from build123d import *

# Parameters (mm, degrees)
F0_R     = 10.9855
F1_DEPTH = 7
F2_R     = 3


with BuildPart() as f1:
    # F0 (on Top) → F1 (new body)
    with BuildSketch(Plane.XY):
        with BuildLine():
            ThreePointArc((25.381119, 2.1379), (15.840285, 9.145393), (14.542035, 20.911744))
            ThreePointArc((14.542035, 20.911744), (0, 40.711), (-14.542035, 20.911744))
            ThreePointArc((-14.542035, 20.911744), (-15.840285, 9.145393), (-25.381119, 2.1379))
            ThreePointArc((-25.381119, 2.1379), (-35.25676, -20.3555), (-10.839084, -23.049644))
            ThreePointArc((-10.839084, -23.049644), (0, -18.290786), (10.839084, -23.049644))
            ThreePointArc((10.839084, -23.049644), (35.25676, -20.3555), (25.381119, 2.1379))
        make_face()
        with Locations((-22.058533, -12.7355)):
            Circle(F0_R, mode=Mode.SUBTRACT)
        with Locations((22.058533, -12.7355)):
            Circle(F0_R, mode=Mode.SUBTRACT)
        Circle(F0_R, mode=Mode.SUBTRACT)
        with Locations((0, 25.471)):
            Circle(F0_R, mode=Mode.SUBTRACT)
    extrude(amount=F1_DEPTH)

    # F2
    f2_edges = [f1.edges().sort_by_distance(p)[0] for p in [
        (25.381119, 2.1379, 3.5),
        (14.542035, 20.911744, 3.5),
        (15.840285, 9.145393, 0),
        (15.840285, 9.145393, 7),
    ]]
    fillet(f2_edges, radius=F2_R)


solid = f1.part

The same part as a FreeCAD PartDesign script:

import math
import FreeCAD as App
import Part
import Sketcher
Q = App.Units.Quantity


def edges_at(feature, points):
    """Names of the edges that pass closest to the given points."""
    edges = feature.Shape.Edges
    near = lambda p: min(range(len(edges)), key=lambda i: edges[i].distToShape(Part.Vertex(*p))[0])
    return sorted({f"Edge{near(p) + 1}" for p in points})

doc = App.newDocument("Part")
params = doc.addObject("Spreadsheet::Sheet", "Params")
for row, (alias, value) in enumerate([
    ("sketch1_radius", "15.24 mm"),
    ("pad1_length", "7 mm"),
    ("fillet_radius", "3 mm"),
], start=1):
    params.set(f"A{row}", alias)
    params.set(f"B{row}", "=" + value)
    params.setAlias(f"B{row}", alias)

body = doc.addObject("PartDesign::Body", "Body")

# Sketch on XY plane
sketch1 = body.newObject("Sketcher::SketchObject", "Sketch")
sketch1.AttachmentSupport = (doc.getObject("XY_Plane"), [""])
sketch1.MapMode = "FlatFace"
sketch1.addGeometry([
    Part.ArcOfCircle(Part.Circle(App.Vector(29, 17, 0), App.Vector(0, 0, 1), 15), math.radians(163), math.radians(257)),  # 0
    Part.ArcOfCircle(Part.Circle(App.Vector(0, 25, 0), App.Vector(0, 0, 1), 15), math.radians(-17), math.radians(197)),  # 1
    Part.ArcOfCircle(Part.Circle(App.Vector(-29, 17, 0), App.Vector(0, 0, 1), 15), math.radians(-77), math.radians(17)),  # 2
    Part.ArcOfCircle(Part.Circle(App.Vector(-22, -13, 0), App.Vector(0, 0, 1), 15), math.radians(103), math.radians(317)),  # 3
    Part.ArcOfCircle(Part.Circle(App.Vector(0, -33, 0), App.Vector(0, 0, 1), 15), math.radians(43), math.radians(137)),  # 4
    Part.ArcOfCircle(Part.Circle(App.Vector(22, -13, 0), App.Vector(0, 0, 1), 15), math.radians(-137), math.radians(77)),  # 5
    Part.Circle(App.Vector(-22, -13, 0), App.Vector(0, 0, 1), 11),  # 6
    Part.Circle(App.Vector(22, -13, 0), App.Vector(0, 0, 1), 11),  # 7
    Part.Circle(App.Vector(0, 0, 0), App.Vector(0, 0, 1), 11),  # 8
    Part.Circle(App.Vector(0, 25, 0), App.Vector(0, 0, 1), 11),  # 9
], False)
sketch1.addConstraint([
    Sketcher.Constraint("Tangent", 0, 1, 1, 1),
    Sketcher.Constraint("Tangent", 1, 2, 2, 2),
    Sketcher.Constraint("Tangent", 2, 1, 3, 1),
    Sketcher.Constraint("Tangent", 3, 2, 4, 2),
    Sketcher.Constraint("Tangent", 4, 1, 5, 1),
    Sketcher.Constraint("Tangent", 5, 2, 0, 2),
    Sketcher.Constraint("Coincident", 8, 3, -1, 1),
    Sketcher.Constraint("Coincident", 6, 3, 3, 3),
    Sketcher.Constraint("Coincident", 7, 3, 5, 3),
    Sketcher.Constraint("Coincident", 9, 3, 1, 3),
    Sketcher.Constraint("Equal", 0, 2),
    Sketcher.Constraint("Equal", 1, 3),
    Sketcher.Constraint("Equal", 2, 4),
    Sketcher.Constraint("Equal", 3, 5),
    Sketcher.Constraint("Equal", 6, 7),
    Sketcher.Constraint("Equal", 7, 8),
    Sketcher.Constraint("Equal", 8, 9),
    Sketcher.Constraint("Symmetric", 0, 3, 2, 3, -2),
    Sketcher.Constraint("PointOnObject", 4, 3, -2),
    Sketcher.Constraint("Radius", 1, Q("15.24 mm")),
    Sketcher.Constraint("Diameter", 6, Q("21.971 mm")),
    Sketcher.Constraint("Radius", 0, Q("14.723329 mm")),
    Sketcher.Constraint("DistanceY", -1, 1, 1, 3, Q("25.471 mm")),
    Sketcher.Constraint("DistanceY", 3, 3, -1, 1, Q("12.7355 mm")),
    Sketcher.Constraint("DistanceY", -1, 1, 2, 1, Q("2.1379 mm")),
])
sketch1.setExpression("Constraints[19]", "Params.sketch1_radius")
pad1 = body.newObject("PartDesign::Pad", "Pad")
pad1.Profile = sketch1
pad1.setExpression("Length", "Params.pad1_length")
doc.recompute()

fillet = body.newObject("PartDesign::Fillet", "Fillet")
fillet.Base = (pad1, edges_at(pad1, [
    (25.381, 2.138, 3.5),
    (14.542, 20.912, 3.5),
    (15.84, 9.145, 0),
    (15.84, 9.145, 7),
]))
fillet.setExpression("Radius", "Params.fillet_radius")

doc.recompute()
